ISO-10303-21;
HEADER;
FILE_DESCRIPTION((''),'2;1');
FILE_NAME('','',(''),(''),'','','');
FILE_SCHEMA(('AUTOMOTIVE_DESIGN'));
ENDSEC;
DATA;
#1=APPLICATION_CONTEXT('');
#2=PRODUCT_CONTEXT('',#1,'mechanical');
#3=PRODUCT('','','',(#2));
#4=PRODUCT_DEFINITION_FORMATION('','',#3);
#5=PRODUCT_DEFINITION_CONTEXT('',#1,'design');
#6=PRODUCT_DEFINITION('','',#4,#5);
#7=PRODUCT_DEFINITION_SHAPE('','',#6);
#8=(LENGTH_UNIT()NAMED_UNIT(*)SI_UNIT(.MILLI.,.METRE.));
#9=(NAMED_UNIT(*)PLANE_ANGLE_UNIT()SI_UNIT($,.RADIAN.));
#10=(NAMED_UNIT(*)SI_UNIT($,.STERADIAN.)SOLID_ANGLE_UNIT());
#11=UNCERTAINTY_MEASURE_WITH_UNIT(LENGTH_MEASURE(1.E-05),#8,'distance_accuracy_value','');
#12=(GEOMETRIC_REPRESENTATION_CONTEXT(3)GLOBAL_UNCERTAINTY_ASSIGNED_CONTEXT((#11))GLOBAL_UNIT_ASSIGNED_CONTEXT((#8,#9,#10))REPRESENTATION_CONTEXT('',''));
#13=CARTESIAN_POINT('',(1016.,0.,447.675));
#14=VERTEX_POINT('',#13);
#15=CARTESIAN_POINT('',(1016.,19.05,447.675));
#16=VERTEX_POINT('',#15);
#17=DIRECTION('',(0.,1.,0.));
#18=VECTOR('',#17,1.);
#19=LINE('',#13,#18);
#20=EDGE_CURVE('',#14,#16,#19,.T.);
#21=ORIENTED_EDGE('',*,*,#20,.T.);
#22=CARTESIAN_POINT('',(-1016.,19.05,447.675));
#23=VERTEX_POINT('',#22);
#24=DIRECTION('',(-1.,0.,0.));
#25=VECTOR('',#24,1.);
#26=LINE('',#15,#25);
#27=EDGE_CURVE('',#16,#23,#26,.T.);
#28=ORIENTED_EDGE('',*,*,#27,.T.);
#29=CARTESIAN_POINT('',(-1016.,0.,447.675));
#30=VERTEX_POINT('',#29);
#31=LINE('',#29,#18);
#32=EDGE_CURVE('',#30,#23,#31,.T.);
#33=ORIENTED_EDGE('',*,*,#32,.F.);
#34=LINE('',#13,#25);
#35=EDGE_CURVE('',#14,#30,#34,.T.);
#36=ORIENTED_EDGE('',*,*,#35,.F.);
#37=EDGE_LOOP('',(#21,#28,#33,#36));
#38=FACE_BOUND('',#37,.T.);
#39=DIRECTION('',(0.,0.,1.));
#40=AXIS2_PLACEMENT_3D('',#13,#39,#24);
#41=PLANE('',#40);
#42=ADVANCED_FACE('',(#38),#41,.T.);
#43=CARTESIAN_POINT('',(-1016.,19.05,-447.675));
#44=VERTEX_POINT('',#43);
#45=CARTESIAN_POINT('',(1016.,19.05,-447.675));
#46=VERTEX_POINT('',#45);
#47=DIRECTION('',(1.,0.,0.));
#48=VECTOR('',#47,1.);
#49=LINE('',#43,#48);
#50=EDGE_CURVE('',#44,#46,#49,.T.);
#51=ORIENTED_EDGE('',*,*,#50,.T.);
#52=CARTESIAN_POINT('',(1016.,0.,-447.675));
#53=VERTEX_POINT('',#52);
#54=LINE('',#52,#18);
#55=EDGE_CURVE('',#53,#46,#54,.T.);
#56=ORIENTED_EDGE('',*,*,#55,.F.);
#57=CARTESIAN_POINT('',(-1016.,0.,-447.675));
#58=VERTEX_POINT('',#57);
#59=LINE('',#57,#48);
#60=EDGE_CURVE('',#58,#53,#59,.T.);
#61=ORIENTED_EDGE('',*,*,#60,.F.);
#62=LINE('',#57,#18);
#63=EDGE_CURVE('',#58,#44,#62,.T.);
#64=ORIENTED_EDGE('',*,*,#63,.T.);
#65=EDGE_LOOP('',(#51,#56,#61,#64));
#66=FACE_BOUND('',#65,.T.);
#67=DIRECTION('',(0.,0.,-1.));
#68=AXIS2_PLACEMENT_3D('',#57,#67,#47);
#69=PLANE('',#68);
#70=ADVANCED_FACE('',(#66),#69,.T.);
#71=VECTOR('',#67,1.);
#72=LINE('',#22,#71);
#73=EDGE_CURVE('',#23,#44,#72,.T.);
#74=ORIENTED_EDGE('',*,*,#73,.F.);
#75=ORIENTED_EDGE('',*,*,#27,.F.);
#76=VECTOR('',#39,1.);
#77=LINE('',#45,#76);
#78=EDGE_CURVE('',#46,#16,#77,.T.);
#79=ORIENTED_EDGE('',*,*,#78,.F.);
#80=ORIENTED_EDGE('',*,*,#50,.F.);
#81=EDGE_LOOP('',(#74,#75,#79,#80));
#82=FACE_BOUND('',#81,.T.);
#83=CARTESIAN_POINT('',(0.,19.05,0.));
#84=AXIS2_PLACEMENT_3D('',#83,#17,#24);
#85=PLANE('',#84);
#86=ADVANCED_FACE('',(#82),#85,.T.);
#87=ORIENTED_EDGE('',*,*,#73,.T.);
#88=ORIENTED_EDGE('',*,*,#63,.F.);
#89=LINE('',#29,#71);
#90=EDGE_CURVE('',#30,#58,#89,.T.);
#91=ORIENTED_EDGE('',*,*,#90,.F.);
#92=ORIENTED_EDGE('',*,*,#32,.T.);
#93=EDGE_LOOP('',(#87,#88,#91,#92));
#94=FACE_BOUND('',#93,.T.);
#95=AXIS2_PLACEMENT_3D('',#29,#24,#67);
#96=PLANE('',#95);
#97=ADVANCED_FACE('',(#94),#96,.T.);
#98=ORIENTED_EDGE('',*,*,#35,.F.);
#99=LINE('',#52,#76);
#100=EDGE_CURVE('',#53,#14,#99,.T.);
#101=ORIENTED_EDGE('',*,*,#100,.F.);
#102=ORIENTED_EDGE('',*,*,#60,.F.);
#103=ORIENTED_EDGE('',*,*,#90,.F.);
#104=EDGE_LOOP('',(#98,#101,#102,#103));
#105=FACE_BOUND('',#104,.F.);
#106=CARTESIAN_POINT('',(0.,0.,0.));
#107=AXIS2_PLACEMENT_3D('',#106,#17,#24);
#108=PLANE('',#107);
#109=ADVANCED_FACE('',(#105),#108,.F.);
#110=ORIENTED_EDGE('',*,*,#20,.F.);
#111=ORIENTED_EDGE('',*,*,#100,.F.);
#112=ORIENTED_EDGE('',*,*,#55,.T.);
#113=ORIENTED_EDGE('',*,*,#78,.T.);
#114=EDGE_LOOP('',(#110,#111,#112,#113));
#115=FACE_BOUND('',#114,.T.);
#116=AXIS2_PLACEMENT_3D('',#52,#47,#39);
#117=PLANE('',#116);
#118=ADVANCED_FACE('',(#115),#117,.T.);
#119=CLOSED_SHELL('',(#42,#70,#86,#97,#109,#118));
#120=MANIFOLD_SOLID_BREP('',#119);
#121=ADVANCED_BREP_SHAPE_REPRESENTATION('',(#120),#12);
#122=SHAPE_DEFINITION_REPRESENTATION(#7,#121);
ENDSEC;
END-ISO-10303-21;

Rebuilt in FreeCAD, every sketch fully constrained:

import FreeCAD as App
import Part
import Sketcher
from FreeCAD import Vector
Q = App.Units.Quantity

doc = App.newDocument("Part")
body = doc.addObject("PartDesign::Body", "Body")

# Sketch on XZ plane
sketch1 = body.newObject("Sketcher::SketchObject", "Sketch")
sketch1.AttachmentSupport = (doc.getObject("XZ_Plane"), [""])
sketch1.MapMode = "FlatFace"
sketch1.addGeometry([
    Part.LineSegment(Vector(-1016, 448, 0), Vector(1016, 448, 0)),
    Part.LineSegment(Vector(1016, 448, 0), Vector(1016, -448, 0)),
    Part.LineSegment(Vector(1016, -448, 0), Vector(-1016, -448, 0)),
    Part.LineSegment(Vector(-1016, -448, 0), Vector(-1016, 448, 0)),
], False)
sketch1.addConstraint([
    Sketcher.Constraint("Coincident", 0, 2, 1, 1),
    Sketcher.Constraint("Coincident", 1, 2, 2, 1),
    Sketcher.Constraint("Coincident", 2, 2, 3, 1),
    Sketcher.Constraint("Coincident", 3, 2, 0, 1),
    Sketcher.Constraint("Horizontal", 0),
    Sketcher.Constraint("Vertical", 1),
    Sketcher.Constraint("Horizontal", 2),
    Sketcher.Constraint("Vertical", 3),
    Sketcher.Constraint("Symmetric", 0, 2, 2, 2, -1, 1),
    Sketcher.Constraint("DistanceX", 0, 1, 0, 2, Q("80 in")),
    Sketcher.Constraint("DistanceY", 1, 2, 1, 1, Q("35.25 in")),
])
pad1 = body.newObject("PartDesign::Pad", "Pad")
pad1.Profile = sketch1
pad1.Length = Q("0.75 in")
pad1.Reversed = True

doc.recompute()
